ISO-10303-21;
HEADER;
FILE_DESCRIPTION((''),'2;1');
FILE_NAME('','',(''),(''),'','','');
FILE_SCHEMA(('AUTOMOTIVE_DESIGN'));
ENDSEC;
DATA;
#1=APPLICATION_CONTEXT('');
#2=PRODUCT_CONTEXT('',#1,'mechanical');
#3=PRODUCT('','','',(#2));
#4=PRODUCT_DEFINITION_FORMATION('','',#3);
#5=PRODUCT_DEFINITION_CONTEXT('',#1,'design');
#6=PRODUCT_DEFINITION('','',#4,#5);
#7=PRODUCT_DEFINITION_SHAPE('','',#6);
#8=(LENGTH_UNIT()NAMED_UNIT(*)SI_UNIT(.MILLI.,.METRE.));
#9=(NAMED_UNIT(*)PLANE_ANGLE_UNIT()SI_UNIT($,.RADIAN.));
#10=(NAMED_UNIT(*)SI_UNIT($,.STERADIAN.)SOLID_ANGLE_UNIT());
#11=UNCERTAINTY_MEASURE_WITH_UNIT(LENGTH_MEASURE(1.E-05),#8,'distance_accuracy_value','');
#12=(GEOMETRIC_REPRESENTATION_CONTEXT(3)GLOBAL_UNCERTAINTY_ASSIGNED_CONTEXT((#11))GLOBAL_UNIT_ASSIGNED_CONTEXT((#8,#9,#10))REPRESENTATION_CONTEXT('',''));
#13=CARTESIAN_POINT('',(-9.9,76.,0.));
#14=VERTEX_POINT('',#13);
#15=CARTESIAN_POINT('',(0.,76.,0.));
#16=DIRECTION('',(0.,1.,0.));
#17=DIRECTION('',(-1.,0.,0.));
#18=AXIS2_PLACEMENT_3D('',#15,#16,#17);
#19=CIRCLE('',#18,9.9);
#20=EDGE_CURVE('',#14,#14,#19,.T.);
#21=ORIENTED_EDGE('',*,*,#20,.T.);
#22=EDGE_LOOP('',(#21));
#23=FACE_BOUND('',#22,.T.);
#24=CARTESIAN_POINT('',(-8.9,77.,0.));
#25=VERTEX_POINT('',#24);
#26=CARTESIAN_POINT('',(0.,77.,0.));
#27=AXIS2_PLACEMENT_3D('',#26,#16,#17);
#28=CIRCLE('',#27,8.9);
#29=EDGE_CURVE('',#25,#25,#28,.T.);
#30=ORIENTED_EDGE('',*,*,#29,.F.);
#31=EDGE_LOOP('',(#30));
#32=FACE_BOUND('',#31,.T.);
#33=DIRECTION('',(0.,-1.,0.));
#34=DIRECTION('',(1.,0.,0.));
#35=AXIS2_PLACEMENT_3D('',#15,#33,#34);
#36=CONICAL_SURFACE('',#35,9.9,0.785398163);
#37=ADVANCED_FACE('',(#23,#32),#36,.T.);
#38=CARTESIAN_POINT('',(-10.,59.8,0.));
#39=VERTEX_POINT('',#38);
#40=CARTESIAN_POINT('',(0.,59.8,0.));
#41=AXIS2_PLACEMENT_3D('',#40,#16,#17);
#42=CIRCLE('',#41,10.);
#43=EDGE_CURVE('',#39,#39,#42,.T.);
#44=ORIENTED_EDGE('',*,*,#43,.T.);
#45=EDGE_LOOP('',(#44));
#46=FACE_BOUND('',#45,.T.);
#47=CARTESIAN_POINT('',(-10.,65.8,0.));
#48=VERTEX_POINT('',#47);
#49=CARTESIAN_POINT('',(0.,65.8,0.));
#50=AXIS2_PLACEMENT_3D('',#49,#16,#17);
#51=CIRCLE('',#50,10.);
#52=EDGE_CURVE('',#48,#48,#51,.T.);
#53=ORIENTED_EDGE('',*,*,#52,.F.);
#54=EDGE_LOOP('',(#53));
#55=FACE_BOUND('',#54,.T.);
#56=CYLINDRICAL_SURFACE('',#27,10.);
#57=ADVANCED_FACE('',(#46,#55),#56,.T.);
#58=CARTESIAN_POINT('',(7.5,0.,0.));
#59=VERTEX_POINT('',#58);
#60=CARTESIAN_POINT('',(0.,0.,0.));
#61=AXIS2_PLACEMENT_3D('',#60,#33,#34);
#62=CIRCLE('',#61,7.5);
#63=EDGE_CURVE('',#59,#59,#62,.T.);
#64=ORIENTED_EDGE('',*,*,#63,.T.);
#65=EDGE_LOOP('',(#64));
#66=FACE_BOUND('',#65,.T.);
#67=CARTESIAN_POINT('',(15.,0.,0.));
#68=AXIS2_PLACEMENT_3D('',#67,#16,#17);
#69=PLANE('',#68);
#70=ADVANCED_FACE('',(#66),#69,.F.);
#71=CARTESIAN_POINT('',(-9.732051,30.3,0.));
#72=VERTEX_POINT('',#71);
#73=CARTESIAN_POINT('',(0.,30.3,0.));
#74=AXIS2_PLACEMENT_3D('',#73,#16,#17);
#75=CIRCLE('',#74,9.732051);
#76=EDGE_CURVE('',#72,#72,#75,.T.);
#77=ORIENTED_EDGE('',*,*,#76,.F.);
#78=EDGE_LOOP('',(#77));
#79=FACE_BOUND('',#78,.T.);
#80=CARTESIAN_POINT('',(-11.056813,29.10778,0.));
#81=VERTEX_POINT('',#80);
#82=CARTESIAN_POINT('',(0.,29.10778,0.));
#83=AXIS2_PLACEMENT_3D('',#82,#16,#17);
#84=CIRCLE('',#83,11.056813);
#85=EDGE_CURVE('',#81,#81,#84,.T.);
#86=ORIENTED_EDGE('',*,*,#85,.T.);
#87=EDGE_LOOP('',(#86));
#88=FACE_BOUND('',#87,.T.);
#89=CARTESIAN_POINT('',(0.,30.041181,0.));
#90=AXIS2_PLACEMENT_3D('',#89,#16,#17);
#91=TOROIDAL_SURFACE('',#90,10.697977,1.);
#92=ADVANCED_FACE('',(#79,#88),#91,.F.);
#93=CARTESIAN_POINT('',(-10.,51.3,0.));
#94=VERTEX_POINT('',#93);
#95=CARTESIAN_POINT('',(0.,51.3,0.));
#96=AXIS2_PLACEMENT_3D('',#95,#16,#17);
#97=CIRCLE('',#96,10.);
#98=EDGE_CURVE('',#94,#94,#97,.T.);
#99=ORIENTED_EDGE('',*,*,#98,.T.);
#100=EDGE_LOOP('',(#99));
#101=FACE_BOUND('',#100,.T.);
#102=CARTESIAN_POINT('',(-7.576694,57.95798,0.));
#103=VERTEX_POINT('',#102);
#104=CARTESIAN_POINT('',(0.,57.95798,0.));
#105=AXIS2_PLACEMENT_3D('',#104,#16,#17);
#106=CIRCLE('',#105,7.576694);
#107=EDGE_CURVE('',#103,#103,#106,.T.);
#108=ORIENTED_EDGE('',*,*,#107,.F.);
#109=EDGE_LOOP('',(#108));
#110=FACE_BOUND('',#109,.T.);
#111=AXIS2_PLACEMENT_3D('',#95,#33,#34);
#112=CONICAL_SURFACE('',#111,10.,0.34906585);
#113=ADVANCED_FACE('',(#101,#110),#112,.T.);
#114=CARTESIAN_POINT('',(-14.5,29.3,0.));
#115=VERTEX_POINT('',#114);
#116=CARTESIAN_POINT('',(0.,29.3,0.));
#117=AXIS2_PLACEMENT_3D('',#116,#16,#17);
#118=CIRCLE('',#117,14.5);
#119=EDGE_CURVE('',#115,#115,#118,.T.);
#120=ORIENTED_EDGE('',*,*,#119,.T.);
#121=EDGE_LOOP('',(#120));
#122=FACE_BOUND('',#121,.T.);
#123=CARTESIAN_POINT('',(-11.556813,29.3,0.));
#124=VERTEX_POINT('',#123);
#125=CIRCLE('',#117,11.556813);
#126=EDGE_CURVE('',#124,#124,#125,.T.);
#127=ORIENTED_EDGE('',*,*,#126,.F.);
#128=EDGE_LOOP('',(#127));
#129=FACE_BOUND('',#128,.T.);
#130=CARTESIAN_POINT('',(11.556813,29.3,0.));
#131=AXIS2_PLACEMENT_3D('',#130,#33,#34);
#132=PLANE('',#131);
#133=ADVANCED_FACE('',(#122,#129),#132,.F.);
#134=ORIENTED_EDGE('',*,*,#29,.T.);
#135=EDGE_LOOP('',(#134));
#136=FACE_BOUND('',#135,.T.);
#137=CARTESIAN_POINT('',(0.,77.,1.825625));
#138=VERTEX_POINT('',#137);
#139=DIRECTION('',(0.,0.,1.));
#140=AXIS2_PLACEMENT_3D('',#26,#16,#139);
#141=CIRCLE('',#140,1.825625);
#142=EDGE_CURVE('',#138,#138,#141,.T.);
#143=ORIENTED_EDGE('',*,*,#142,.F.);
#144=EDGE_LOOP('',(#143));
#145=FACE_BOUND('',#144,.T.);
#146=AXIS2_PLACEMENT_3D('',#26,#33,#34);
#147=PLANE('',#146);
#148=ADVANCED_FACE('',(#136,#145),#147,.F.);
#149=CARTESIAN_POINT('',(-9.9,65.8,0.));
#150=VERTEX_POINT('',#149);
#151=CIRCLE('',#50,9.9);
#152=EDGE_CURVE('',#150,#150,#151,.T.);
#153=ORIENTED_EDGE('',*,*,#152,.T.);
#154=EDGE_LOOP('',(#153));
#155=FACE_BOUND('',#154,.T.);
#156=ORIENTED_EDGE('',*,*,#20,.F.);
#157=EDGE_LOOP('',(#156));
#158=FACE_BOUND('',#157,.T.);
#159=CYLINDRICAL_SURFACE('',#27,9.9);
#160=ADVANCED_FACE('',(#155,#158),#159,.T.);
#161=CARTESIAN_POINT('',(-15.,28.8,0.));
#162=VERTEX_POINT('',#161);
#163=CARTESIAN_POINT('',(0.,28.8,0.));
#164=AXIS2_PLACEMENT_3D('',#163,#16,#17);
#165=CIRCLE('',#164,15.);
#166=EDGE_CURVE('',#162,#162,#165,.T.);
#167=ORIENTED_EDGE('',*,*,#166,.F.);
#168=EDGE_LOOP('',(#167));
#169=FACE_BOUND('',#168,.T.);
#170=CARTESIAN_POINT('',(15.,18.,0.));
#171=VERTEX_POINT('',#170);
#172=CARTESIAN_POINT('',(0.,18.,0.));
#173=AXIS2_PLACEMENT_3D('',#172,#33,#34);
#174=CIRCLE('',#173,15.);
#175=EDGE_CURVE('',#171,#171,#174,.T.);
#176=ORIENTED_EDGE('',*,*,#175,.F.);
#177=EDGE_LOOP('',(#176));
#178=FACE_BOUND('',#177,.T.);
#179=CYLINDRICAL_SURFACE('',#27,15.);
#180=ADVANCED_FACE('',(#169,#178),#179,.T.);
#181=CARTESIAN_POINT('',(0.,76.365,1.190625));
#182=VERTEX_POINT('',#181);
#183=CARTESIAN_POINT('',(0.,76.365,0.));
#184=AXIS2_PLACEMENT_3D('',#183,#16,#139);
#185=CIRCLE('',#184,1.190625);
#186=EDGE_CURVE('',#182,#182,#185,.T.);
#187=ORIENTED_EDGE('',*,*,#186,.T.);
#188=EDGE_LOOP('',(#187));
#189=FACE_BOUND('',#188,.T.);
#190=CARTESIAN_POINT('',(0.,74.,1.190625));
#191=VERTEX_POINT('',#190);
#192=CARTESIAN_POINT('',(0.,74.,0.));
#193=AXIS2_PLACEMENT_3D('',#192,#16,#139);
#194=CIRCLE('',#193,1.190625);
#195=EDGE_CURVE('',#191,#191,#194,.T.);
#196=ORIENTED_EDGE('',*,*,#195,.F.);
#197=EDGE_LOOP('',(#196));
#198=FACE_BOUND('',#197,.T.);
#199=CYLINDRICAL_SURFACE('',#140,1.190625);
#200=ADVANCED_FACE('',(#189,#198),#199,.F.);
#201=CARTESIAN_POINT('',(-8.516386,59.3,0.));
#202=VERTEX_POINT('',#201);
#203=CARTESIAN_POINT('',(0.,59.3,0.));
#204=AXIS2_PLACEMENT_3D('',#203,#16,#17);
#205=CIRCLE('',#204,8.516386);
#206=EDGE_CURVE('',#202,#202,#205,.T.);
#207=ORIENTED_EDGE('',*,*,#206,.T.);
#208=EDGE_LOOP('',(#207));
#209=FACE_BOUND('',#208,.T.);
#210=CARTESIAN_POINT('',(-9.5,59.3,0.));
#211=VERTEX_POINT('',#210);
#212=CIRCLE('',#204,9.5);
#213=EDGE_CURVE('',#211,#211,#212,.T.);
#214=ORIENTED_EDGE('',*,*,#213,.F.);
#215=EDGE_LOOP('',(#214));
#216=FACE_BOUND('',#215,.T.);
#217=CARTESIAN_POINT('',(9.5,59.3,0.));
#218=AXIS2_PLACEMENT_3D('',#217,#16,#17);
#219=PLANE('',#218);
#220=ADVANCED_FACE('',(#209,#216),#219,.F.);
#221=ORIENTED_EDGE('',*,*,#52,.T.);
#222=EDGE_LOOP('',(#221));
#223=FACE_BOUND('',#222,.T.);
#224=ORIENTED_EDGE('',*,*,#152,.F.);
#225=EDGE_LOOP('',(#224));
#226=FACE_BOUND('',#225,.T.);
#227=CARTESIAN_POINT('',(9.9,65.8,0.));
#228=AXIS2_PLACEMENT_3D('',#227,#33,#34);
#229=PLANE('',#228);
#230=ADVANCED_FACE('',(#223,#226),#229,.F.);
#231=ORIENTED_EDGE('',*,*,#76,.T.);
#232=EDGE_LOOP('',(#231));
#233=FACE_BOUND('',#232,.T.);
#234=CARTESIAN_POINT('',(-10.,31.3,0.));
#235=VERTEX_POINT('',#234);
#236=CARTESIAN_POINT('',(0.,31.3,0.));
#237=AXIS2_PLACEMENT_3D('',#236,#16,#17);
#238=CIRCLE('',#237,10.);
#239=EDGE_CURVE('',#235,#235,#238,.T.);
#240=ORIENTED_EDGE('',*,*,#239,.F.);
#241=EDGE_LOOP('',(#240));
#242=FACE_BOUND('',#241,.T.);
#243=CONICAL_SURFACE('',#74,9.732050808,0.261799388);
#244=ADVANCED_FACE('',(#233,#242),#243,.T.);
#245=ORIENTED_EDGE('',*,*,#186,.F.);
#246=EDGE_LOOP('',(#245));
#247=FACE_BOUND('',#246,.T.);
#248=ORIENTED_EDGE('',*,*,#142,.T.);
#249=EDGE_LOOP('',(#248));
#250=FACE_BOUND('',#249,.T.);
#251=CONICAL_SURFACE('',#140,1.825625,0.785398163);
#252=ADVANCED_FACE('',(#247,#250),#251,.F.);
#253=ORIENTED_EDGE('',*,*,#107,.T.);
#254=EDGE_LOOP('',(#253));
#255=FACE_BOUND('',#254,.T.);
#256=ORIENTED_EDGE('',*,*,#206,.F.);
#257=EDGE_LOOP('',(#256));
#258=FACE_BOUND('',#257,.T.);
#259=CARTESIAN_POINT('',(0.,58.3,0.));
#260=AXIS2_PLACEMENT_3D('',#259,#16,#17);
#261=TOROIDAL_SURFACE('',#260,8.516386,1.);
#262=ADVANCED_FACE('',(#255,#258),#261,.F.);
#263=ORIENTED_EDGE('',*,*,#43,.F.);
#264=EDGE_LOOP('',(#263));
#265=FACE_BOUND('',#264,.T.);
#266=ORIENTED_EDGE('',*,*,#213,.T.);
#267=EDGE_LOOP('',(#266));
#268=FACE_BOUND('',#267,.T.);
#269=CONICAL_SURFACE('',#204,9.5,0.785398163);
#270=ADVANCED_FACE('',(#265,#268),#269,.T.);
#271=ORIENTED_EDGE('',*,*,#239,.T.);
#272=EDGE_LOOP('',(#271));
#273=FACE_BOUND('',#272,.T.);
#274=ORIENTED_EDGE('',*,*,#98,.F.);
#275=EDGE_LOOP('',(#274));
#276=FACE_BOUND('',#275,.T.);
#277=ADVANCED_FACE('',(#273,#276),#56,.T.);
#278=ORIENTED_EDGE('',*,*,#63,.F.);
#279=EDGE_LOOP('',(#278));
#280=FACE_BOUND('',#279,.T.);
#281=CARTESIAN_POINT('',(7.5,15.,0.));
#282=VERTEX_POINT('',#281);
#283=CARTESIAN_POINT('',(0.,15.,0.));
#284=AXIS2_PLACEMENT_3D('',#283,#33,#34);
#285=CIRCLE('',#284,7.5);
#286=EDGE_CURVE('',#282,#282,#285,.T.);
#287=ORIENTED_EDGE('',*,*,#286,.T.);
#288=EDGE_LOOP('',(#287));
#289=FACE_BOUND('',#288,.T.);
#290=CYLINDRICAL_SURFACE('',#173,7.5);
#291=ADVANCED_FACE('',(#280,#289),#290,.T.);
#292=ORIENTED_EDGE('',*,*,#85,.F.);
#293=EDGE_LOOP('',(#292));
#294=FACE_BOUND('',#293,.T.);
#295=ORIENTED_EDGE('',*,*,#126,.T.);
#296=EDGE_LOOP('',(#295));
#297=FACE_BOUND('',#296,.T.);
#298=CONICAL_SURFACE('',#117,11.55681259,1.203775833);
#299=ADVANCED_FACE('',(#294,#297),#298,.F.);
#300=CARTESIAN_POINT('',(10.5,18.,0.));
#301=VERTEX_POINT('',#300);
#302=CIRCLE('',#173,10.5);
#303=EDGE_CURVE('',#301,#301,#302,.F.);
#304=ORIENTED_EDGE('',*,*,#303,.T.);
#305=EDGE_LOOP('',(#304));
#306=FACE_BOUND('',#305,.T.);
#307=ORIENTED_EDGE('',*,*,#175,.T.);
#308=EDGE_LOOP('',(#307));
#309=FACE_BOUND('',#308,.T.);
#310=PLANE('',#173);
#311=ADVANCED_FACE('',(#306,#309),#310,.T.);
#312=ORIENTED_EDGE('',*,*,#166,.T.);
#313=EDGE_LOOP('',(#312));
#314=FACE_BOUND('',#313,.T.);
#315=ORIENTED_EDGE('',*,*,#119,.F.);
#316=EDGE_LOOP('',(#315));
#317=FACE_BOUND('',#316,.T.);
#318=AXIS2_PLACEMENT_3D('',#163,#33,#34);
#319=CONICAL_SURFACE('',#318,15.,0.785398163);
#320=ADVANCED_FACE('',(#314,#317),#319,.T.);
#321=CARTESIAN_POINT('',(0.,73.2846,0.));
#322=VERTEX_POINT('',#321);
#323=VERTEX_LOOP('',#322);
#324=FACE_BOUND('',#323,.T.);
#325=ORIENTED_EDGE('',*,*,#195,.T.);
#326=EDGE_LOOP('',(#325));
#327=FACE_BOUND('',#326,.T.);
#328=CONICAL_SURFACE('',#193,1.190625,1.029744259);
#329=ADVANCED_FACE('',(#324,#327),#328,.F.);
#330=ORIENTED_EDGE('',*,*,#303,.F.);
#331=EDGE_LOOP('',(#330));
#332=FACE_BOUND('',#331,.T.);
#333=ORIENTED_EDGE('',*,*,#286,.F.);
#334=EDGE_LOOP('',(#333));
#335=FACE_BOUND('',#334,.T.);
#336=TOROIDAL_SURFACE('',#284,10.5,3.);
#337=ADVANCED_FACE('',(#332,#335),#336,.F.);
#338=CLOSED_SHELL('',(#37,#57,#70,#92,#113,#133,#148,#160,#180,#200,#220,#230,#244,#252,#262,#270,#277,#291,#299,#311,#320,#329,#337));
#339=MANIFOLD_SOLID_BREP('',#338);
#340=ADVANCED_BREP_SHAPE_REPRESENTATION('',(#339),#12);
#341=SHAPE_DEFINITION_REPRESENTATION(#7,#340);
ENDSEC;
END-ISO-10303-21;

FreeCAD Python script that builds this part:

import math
import FreeCAD as App
import Part
import Sketcher

V = App.Vector
Q = App.Units.Quantity


def edges_at(feature, points):
    """Names of the edges that pass closest to the given points."""
    edges = feature.Shape.Edges
    near = lambda p: min(range(len(edges)), key=lambda i: edges[i].distToShape(Part.Vertex(*p))[0])
    return sorted({f"Edge{near(p) + 1}" for p in points})

doc = App.newDocument("Part")
body = doc.addObject("PartDesign::Body", "Body")

# Sketch on XY plane
sketch1 = doc.addObject("Sketcher::SketchObject", "Sketch")
body.addObject(sketch1)
sketch1.AttachmentSupport = (doc.XY_Plane, [""])
sketch1.MapMode = "FlatFace"
sketch1.addGeometry([
    Part.LineSegment(V(8.9, 77, 0), V(0, 77, 0)),  # 0
    Part.LineSegment(V(0, 77, 0), V(0, 0, 0)),  # 1
    Part.LineSegment(V(0, 0, 0), V(15, 0, 0)),  # 2
    Part.LineSegment(V(15, 0, 0), V(15, 28.8, 0)),  # 3
    Part.LineSegment(V(15, 28.8, 0), V(14.5, 29.3, 0)),  # 4
    Part.LineSegment(V(14.5, 29.3, 0), V(11.556813, 29.3, 0)),  # 5
    Part.LineSegment(V(11.556813, 29.3, 0), V(11.056813, 29.10778, 0)),  # 6
    Part.ArcOfCircle(Part.Circle(V(10.697977, 30.041181, 0), V(0, 0, 1), 1), math.radians(165), math.radians(291.028725)),  # 7
    Part.LineSegment(V(9.732051, 30.3, 0), V(10, 31.3, 0)),  # 8
    Part.LineSegment(V(10, 31.3, 0), V(10, 51.3, 0)),  # 9
    Part.LineSegment(V(10, 51.3, 0), V(7.576694, 57.95798, 0)),  # 10
    Part.ArcOfCircle(Part.Circle(V(8.516386, 58.3, 0), V(0, 0, 1), 1), math.radians(90), math.radians(200)),  # 11
    Part.LineSegment(V(8.516386, 59.3, 0), V(9.5, 59.3, 0)),  # 12
    Part.LineSegment(V(9.5, 59.3, 0), V(10, 59.8, 0)),  # 13
    Part.LineSegment(V(10, 59.8, 0), V(10, 65.8, 0)),  # 14
    Part.LineSegment(V(10, 65.8, 0), V(9.9, 65.8, 0)),  # 15
    Part.LineSegment(V(9.9, 65.8, 0), V(9.9, 76, 0)),  # 16
    Part.LineSegment(V(9.9, 76, 0), V(8.9, 77, 0)),  # 17
], False)
sketch1.addConstraint([
    Sketcher.Constraint("Coincident", 0, 2, 1, 1),
    Sketcher.Constraint("Coincident", 1, 2, 2, 1),
    Sketcher.Constraint("Coincident", 2, 2, 3, 1),
    Sketcher.Constraint("Coincident", 3, 2, 4, 1),
    Sketcher.Constraint("Coincident", 4, 2, 5, 1),
    Sketcher.Constraint("Coincident", 5, 2, 6, 1),
    Sketcher.Constraint("Tangent", 6, 2, 7, 2),
    Sketcher.Constraint("Tangent", 7, 1, 8, 1),
    Sketcher.Constraint("Coincident", 8, 2, 9, 1),
    Sketcher.Constraint("Coincident", 9, 2, 10, 1),
    Sketcher.Constraint("Tangent", 10, 2, 11, 2),
    Sketcher.Constraint("Tangent", 11, 1, 12, 1),
    Sketcher.Constraint("Coincident", 12, 2, 13, 1),
    Sketcher.Constraint("Coincident", 13, 2, 14, 1),
    Sketcher.Constraint("Coincident", 14, 2, 15, 1),
    Sketcher.Constraint("Coincident", 15, 2, 16, 1),
    Sketcher.Constraint("Coincident", 16, 2, 17, 1),
    Sketcher.Constraint("Coincident", 17, 2, 0, 1),
    Sketcher.Constraint("Horizontal", 0),
    Sketcher.Constraint("Vertical", 1),
    Sketcher.Constraint("Horizontal", 2),
    Sketcher.Constraint("Vertical", 3),
    Sketcher.Constraint("Horizontal", 5),
    Sketcher.Constraint("Vertical", 9),
    Sketcher.Constraint("Horizontal", 12),
    Sketcher.Constraint("Vertical", 14),
    Sketcher.Constraint("Horizontal", 15),
    Sketcher.Constraint("Vertical", 16),
    Sketcher.Constraint("Coincident", 1, 2, -1, 1),
    Sketcher.Constraint("Equal", 7, 11),
    Sketcher.Constraint("Perpendicular", 4, 13),
    Sketcher.Constraint("Perpendicular", 13, 17),
    Sketcher.Constraint("Vertical", 9, 2, 13, 2),
    Sketcher.Constraint("Equal", 4, 13),
    Sketcher.Constraint("Radius", 7, 1.0),
    Sketcher.Constraint("DistanceX", 2, 1, 2, 2, 15.0),
    Sketcher.Constraint("DistanceY", 1, 2, 1, 1, 77.0),
    Sketcher.Constraint("DistanceY", 9, 1, 9, 2, 20.0),
    Sketcher.Constraint("DistanceY", 14, 1, 14, 2, 6.0),
    Sketcher.Constraint("Angle", 4, Q("135 deg")),
    Sketcher.Constraint("Angle", 8, Q("75 deg")),
    Sketcher.Constraint("Angle", 10, Q("110 deg")),
    Sketcher.Constraint("DistanceX", 0, 2, 0, 1, 8.9),
    Sketcher.Constraint("DistanceX", 15, 2, 15, 1, 0.1),
    Sketcher.Constraint("DistanceY", 3, 1, 3, 2, 28.8),
    Sketcher.Constraint("DistanceY", 16, 1, 16, 2, 10.2),
    Sketcher.Constraint("DistanceX", -1, 1, 8, 2, 10.0),
    Sketcher.Constraint("DistanceY", 4, 2, 11, 3, 29.0),
    Sketcher.Constraint("DistanceY", 5, 2, 7, 1, 1.0),
    Sketcher.Constraint("DistanceY", 7, 1, 8, 2, 1.0),
    Sketcher.Constraint("DistanceX", 6, 2, 5, 2, 0.5),
])
revolution = doc.addObject("PartDesign::Revolution", "Revolution")
body.addObject(revolution)
revolution.Profile = sketch1
revolution.ReferenceAxis = (sketch1, ["V_Axis"])
revolution.Angle = 360

# Sketch on XZ plane
sketch2 = doc.addObject("Sketcher::SketchObject", "Sketch001")
body.addObject(sketch2)
sketch2.AttachmentSupport = (doc.XZ_Plane, [""])
sketch2.MapMode = "FlatFace"
sketch2.AttachmentOffset = App.Placement(V(0, 0, -77), App.Rotation())
sketch2.addGeometry(Part.Circle(V(0, 0, 0), V(0, 0, 1), 1.190625), False)
sketch2.addConstraint([
    Sketcher.Constraint("Coincident", 0, 3, -1, 1),
    Sketcher.Constraint("Diameter", 0, 2.38125),
])
doc.recompute()
hole = doc.addObject("PartDesign::Hole", "Hole")
body.addObject(hole)
hole.Profile = sketch2
hole.ThreadType = "None"
hole.Diameter = 2.38125
hole.DepthType = "Dimension"
hole.Depth = 3
hole.DrillPoint = "Angled"
hole.DrillPointAngle = 118
hole.HoleCutType = "Countersink"
hole.HoleCutDiameter = 3.65125
hole.HoleCutCountersinkAngle = 90
hole.Reversed = True

# Sketch on XZ plane
sketch3 = doc.addObject("Sketcher::SketchObject", "Sketch002")
body.addObject(sketch3)
sketch3.AttachmentSupport = (doc.XZ_Plane, [""])
sketch3.MapMode = "FlatFace"
sketch3.addGeometry([
    Part.LineSegment(V(-24.791, 24.791, 0), V(-24.791, -24.791, 0)),  # 0
    Part.LineSegment(V(-24.791, -24.791, 0), V(24.791, -24.791, 0)),  # 1
    Part.LineSegment(V(24.791, -24.791, 0), V(24.791, 24.791, 0)),  # 2
    Part.LineSegment(V(24.791, 24.791, 0), V(-24.791, 24.791, 0)),  # 3
    Part.Circle(V(0, 0, 0), V(0, 0, 1), 7.5),  # 4
], False)
sketch3.addConstraint([
    Sketcher.Constraint("Coincident", 0, 2, 1, 1),
    Sketcher.Constraint("Coincident", 1, 2, 2, 1),
    Sketcher.Constraint("Coincident", 2, 2, 3, 1),
    Sketcher.Constraint("Coincident", 3, 2, 0, 1),
    Sketcher.Constraint("Vertical", 0),
    Sketcher.Constraint("Horizontal", 1),
    Sketcher.Constraint("Vertical", 2),
    Sketcher.Constraint("Horizontal", 3),
    Sketcher.Constraint("Coincident", 4, 3, -1, 1),
    Sketcher.Constraint("Symmetric", 0, 2, 2, 2, -1, 1),
    Sketcher.Constraint("Equal", 3, 0),
    Sketcher.Constraint("Diameter", 4, 15.0),
    Sketcher.Constraint("DistanceX", 1, 1, 1, 2, 49.582),
])
pocket1 = doc.addObject("PartDesign::Pocket", "Pocket")
body.addObject(pocket1)
pocket1.Profile = sketch3
pocket1.Length = 18
doc.recompute()

fillet = doc.addObject("PartDesign::Fillet", "Fillet")
body.addObject(fillet)
fillet.Base = (pocket1, edges_at(pocket1, [(-7.5, 18, 0)]))
fillet.Radius = 3

doc.recompute()
